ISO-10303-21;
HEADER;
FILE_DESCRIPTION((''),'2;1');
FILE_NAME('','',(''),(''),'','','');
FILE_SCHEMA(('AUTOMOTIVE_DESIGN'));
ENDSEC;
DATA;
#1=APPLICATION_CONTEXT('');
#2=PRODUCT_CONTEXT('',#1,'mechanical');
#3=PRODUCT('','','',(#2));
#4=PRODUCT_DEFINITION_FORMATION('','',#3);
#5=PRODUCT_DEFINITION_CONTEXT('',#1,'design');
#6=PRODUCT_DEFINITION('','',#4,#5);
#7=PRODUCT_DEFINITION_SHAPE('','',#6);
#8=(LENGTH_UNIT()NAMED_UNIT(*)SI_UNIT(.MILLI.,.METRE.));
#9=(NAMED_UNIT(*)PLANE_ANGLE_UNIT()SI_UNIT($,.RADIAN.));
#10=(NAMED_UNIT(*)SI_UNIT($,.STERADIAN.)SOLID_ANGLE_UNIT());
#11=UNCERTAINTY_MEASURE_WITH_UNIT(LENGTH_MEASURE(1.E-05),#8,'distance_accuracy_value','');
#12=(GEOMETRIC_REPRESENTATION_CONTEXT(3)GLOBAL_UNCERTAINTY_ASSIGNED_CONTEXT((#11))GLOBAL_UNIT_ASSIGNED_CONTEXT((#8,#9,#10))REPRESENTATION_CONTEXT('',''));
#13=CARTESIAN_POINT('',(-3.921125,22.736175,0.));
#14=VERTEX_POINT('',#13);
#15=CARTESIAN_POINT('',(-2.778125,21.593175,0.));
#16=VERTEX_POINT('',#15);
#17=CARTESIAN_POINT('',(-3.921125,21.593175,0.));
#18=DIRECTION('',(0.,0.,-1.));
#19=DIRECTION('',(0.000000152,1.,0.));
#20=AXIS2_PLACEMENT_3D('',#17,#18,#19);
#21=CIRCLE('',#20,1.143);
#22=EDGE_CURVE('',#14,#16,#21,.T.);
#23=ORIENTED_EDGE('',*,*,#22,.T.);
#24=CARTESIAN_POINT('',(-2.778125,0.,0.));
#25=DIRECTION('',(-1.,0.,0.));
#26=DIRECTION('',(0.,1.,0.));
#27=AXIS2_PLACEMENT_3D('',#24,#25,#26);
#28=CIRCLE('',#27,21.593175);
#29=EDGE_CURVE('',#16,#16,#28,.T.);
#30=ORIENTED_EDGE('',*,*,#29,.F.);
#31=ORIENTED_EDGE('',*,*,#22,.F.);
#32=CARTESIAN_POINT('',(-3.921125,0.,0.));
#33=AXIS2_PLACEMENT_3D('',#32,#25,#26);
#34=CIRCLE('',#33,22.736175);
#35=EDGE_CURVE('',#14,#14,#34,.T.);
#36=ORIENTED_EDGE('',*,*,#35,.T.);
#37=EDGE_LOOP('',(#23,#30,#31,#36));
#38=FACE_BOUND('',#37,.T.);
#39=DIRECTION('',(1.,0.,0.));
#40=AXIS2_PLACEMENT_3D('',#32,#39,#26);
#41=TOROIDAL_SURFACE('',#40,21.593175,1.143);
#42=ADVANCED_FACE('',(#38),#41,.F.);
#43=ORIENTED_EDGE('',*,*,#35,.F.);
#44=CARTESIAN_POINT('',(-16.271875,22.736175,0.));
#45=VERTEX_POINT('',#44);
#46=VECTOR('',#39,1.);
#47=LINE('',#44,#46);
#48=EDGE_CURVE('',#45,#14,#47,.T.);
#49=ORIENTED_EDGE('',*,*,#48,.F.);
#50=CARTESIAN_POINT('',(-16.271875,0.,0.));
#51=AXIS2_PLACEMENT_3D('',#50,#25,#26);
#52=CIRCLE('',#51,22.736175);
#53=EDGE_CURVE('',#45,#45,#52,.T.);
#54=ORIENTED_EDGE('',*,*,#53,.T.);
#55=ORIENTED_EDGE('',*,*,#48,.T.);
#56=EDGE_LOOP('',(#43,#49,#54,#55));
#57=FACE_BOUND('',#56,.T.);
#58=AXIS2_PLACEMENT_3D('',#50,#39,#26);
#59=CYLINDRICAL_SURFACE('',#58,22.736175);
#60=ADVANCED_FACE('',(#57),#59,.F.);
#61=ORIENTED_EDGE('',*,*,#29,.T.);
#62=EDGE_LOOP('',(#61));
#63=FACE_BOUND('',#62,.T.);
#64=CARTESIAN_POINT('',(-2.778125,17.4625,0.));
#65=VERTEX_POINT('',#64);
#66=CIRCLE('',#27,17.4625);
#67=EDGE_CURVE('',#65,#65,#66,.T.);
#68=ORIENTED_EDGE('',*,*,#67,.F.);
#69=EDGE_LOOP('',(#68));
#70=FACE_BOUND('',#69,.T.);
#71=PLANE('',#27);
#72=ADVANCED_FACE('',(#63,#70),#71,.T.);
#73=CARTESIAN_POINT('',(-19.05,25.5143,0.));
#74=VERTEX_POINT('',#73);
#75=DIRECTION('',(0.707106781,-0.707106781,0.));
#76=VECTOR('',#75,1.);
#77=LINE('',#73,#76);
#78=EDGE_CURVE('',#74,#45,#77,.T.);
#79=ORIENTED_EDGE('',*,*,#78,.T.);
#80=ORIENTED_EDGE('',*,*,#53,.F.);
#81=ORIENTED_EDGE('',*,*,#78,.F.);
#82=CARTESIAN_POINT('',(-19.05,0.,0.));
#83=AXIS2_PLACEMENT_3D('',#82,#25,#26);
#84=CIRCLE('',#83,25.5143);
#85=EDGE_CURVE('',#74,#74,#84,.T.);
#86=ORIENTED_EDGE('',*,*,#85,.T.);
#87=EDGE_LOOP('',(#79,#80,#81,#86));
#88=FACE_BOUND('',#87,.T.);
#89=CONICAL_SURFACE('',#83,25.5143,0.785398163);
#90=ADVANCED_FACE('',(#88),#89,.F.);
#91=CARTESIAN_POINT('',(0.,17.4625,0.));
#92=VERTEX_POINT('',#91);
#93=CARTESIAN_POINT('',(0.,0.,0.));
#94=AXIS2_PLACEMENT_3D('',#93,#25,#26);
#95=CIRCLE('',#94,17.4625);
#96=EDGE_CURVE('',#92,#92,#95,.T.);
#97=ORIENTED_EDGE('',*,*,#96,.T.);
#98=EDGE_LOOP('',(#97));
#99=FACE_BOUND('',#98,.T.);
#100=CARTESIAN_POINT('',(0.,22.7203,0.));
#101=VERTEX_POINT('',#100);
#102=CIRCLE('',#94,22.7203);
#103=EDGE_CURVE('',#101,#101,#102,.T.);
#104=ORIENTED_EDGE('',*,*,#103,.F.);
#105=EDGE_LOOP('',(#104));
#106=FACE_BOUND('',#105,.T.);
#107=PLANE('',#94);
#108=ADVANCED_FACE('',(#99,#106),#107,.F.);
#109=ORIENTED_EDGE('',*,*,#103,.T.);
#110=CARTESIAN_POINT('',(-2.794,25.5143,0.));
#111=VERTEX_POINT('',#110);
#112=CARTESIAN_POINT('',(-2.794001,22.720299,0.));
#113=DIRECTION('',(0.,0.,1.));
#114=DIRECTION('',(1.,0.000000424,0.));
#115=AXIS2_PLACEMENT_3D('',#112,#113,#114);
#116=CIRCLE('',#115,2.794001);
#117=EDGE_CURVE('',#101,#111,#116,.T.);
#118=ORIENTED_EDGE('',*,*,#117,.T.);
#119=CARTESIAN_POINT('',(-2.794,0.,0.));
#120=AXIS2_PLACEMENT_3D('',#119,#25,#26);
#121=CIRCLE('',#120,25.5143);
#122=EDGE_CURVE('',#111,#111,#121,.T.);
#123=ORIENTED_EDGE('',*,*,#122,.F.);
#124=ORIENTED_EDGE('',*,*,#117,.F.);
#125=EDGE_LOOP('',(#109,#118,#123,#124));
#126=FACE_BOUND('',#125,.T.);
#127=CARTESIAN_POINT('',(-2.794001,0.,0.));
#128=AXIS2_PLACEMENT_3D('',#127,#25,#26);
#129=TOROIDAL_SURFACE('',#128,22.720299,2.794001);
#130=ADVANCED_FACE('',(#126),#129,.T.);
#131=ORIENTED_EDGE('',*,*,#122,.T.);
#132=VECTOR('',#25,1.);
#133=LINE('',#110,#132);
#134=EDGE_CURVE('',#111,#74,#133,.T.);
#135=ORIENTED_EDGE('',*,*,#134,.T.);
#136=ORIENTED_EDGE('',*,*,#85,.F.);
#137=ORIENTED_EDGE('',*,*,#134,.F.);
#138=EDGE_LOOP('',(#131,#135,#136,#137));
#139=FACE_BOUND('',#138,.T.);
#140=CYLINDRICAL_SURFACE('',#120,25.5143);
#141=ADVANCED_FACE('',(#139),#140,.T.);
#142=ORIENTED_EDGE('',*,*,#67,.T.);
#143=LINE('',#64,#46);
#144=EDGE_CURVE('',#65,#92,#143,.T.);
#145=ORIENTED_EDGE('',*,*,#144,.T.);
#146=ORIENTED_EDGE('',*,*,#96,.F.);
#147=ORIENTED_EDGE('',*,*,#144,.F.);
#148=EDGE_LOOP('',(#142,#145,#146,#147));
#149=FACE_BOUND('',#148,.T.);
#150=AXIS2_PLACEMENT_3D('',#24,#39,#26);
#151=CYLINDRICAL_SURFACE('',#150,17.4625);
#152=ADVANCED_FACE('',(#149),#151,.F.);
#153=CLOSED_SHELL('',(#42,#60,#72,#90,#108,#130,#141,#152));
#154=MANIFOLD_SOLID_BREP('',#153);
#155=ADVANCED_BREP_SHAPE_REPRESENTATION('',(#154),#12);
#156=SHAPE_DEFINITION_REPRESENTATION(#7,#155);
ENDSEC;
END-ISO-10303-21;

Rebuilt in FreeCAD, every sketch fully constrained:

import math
import FreeCAD as App
import Part
import Sketcher

V = App.Vector
Q = App.Units.Quantity

doc = App.newDocument("Part")
body = doc.addObject("PartDesign::Body", "Body")

sketch1 = body.newObject("Sketcher::SketchObject", "Sketch")
sketch1.AttachmentSupport = (doc.getObject("XY_Plane"), [""])
sketch1.MapMode = "FlatFace"
sketch1.addGeometry([
    Part.ArcOfCircle(Part.Circle(V(-2.8, 22.7, 0), V(0, 0, 1), 2.8), math.radians(0), math.radians(90)),
    Part.LineSegment(V(-2.8, 25.5, 0), V(-19.1, 25.5, 0)),
    Part.LineSegment(V(-19.1, 25.5, 0), V(-16.3, 22.7, 0)),
    Part.LineSegment(V(-16.3, 22.7, 0), V(-3.9, 22.7, 0)),
    Part.ArcOfCircle(Part.Circle(V(-3.9, 21.6, 0), V(0, 0, 1), 1.1), math.radians(0), math.radians(90)),
    Part.LineSegment(V(-2.8, 21.6, 0), V(-2.8, 17.5, 0)),
    Part.LineSegment(V(-2.8, 17.5, 0), V(0, 17.5, 0)),
    Part.LineSegment(V(0, 17.5, 0), V(0, 22.7, 0)),
], False)
sketch1.addConstraint([
    Sketcher.Constraint("Tangent", 0, 2, 1, 1),
    Sketcher.Constraint("Coincident", 1, 2, 2, 1),
    Sketcher.Constraint("Coincident", 2, 2, 3, 1),
    Sketcher.Constraint("Tangent", 3, 2, 4, 2),
    Sketcher.Constraint("Tangent", 4, 1, 5, 1),
    Sketcher.Constraint("Coincident", 5, 2, 6, 1),
    Sketcher.Constraint("Coincident", 6, 2, 7, 1),
    Sketcher.Constraint("Tangent", 7, 2, 0, 1),
    Sketcher.Constraint("Horizontal", 1),
    Sketcher.Constraint("Horizontal", 3),
    Sketcher.Constraint("Vertical", 5),
    Sketcher.Constraint("Horizontal", 6),
    Sketcher.Constraint("Vertical", 7),
    Sketcher.Constraint("PointOnObject", 6, 2, -2),
    Sketcher.Constraint("Radius", 0, Q("0.11 in")),
    Sketcher.Constraint("Angle", 2, Q("-45 deg")),
    Sketcher.Constraint("Radius", 4, Q("0.045 in")),
    Sketcher.Constraint("DistanceX", 1, 2, 1, 1, Q("0.64 in")),
    Sketcher.Constraint("DistanceX", 6, 1, 6, 2, Q("0.109375 in")),
    Sketcher.Constraint("DistanceY", 7, 1, 7, 2, Q("0.207 in")),
    Sketcher.Constraint("DistanceX", 2, 2, -1, 1, Q("0.640625 in")),
    Sketcher.Constraint("DistanceY", -1, 1, 5, 2, Q("0.6875 in")),
])
revolution = body.newObject("PartDesign::Revolution", "Revolution")
revolution.Profile = sketch1
revolution.ReferenceAxis = (sketch1, ["H_Axis"])
revolution.Angle = 360

doc.recompute()
